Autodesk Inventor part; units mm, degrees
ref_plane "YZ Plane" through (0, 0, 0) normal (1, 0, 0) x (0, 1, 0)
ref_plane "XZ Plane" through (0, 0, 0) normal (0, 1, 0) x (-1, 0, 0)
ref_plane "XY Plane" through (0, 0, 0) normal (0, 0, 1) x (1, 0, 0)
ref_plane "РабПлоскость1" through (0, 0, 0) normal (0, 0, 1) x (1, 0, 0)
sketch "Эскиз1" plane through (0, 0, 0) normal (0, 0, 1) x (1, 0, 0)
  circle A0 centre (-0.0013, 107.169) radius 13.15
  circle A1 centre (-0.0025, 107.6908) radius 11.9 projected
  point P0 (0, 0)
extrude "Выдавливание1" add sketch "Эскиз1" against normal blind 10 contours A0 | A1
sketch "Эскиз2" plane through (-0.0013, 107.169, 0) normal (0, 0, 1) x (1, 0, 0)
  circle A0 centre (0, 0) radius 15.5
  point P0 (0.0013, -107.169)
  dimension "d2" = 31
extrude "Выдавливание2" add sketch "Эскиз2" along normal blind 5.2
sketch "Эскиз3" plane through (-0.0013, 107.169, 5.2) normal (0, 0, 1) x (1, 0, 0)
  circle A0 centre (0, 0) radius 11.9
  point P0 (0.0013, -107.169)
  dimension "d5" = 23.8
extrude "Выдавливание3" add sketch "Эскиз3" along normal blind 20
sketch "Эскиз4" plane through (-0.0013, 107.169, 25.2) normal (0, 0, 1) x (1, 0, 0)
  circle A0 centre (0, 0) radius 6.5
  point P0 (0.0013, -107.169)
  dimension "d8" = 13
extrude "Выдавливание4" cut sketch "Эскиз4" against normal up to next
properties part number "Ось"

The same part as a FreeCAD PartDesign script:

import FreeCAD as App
import Part
import Sketcher
from FreeCAD import Vector

doc = App.newDocument("Part")
body = doc.addObject("PartDesign::Body", "Body")

sketch1 = body.newObject("Sketcher::SketchObject", "Sketch")
sketch1.AttachmentSupport = (doc.getObject("XY_Plane"), [""])
sketch1.MapMode = "FlatFace"
sketch1.addGeometry(Part.Circle(Vector(0, 107, 0), Vector(0, 0, 1), 13), False)
sketch1.addConstraint([
    Sketcher.Constraint("Diameter", 0, 26.3),
    Sketcher.Constraint("DistanceY", -1, 1, 0, 3, 107.169),
    Sketcher.Constraint("DistanceX", 0, 3, -1, 1, 0.0013),
])
pad1 = body.newObject("PartDesign::Pad", "Pad")
pad1.Profile = sketch1
pad1.Length = 10
pad1.Reversed = True

sketch2 = body.newObject("Sketcher::SketchObject", "Sketch001")
sketch2.AttachmentSupport = (doc.getObject("XY_Plane"), [""])
sketch2.MapMode = "FlatFace"
sketch2.addGeometry(Part.Circle(Vector(0, 107, 0), Vector(0, 0, 1), 16), False)
sketch2.addConstraint([
    Sketcher.Constraint("Diameter", 0, 31.0),
    Sketcher.Constraint("DistanceY", -1, 1, 0, 3, 107.169),
    Sketcher.Constraint("DistanceX", 0, 3, -1, 1, 0.0013),
])
pad2 = body.newObject("PartDesign::Pad", "Pad001")
pad2.Profile = sketch2
pad2.Length = 5.2

sketch3 = body.newObject("Sketcher::SketchObject", "Sketch002")
sketch3.AttachmentSupport = (doc.getObject("XY_Plane"), [""])
sketch3.MapMode = "FlatFace"
sketch3.AttachmentOffset = App.Placement(Vector(0, 0, 5.2), App.Rotation())
sketch3.addGeometry(Part.Circle(Vector(0, 107, 0), Vector(0, 0, 1), 12), False)
sketch3.addConstraint([
    Sketcher.Constraint("Diameter", 0, 23.8),
    Sketcher.Constraint("DistanceY", -1, 1, 0, 3, 107.169),
    Sketcher.Constraint("DistanceX", 0, 3, -1, 1, 0.0013),
])
pad3 = body.newObject("PartDesign::Pad", "Pad002")
pad3.Profile = sketch3
pad3.Length = 20

sketch4 = body.newObject("Sketcher::SketchObject", "Sketch003")
sketch4.AttachmentSupport = (doc.getObject("XY_Plane"), [""])
sketch4.MapMode = "FlatFace"
sketch4.AttachmentOffset = App.Placement(Vector(0, 0, 25.2), App.Rotation())
sketch4.addGeometry(Part.Circle(Vector(0, 107, 0), Vector(0, 0, 1), 6), False)
sketch4.addConstraint([
    Sketcher.Constraint("Diameter", 0, 13.0),
    Sketcher.Constraint("DistanceY", -1, 1, 0, 3, 107.169),
    Sketcher.Constraint("DistanceX", 0, 3, -1, 1, 0.0013),
])
pocket1 = body.newObject("PartDesign::Pocket", "Pocket")
pocket1.Profile = sketch4
pocket1.Type = "UpToFirst"

doc.recompute()
